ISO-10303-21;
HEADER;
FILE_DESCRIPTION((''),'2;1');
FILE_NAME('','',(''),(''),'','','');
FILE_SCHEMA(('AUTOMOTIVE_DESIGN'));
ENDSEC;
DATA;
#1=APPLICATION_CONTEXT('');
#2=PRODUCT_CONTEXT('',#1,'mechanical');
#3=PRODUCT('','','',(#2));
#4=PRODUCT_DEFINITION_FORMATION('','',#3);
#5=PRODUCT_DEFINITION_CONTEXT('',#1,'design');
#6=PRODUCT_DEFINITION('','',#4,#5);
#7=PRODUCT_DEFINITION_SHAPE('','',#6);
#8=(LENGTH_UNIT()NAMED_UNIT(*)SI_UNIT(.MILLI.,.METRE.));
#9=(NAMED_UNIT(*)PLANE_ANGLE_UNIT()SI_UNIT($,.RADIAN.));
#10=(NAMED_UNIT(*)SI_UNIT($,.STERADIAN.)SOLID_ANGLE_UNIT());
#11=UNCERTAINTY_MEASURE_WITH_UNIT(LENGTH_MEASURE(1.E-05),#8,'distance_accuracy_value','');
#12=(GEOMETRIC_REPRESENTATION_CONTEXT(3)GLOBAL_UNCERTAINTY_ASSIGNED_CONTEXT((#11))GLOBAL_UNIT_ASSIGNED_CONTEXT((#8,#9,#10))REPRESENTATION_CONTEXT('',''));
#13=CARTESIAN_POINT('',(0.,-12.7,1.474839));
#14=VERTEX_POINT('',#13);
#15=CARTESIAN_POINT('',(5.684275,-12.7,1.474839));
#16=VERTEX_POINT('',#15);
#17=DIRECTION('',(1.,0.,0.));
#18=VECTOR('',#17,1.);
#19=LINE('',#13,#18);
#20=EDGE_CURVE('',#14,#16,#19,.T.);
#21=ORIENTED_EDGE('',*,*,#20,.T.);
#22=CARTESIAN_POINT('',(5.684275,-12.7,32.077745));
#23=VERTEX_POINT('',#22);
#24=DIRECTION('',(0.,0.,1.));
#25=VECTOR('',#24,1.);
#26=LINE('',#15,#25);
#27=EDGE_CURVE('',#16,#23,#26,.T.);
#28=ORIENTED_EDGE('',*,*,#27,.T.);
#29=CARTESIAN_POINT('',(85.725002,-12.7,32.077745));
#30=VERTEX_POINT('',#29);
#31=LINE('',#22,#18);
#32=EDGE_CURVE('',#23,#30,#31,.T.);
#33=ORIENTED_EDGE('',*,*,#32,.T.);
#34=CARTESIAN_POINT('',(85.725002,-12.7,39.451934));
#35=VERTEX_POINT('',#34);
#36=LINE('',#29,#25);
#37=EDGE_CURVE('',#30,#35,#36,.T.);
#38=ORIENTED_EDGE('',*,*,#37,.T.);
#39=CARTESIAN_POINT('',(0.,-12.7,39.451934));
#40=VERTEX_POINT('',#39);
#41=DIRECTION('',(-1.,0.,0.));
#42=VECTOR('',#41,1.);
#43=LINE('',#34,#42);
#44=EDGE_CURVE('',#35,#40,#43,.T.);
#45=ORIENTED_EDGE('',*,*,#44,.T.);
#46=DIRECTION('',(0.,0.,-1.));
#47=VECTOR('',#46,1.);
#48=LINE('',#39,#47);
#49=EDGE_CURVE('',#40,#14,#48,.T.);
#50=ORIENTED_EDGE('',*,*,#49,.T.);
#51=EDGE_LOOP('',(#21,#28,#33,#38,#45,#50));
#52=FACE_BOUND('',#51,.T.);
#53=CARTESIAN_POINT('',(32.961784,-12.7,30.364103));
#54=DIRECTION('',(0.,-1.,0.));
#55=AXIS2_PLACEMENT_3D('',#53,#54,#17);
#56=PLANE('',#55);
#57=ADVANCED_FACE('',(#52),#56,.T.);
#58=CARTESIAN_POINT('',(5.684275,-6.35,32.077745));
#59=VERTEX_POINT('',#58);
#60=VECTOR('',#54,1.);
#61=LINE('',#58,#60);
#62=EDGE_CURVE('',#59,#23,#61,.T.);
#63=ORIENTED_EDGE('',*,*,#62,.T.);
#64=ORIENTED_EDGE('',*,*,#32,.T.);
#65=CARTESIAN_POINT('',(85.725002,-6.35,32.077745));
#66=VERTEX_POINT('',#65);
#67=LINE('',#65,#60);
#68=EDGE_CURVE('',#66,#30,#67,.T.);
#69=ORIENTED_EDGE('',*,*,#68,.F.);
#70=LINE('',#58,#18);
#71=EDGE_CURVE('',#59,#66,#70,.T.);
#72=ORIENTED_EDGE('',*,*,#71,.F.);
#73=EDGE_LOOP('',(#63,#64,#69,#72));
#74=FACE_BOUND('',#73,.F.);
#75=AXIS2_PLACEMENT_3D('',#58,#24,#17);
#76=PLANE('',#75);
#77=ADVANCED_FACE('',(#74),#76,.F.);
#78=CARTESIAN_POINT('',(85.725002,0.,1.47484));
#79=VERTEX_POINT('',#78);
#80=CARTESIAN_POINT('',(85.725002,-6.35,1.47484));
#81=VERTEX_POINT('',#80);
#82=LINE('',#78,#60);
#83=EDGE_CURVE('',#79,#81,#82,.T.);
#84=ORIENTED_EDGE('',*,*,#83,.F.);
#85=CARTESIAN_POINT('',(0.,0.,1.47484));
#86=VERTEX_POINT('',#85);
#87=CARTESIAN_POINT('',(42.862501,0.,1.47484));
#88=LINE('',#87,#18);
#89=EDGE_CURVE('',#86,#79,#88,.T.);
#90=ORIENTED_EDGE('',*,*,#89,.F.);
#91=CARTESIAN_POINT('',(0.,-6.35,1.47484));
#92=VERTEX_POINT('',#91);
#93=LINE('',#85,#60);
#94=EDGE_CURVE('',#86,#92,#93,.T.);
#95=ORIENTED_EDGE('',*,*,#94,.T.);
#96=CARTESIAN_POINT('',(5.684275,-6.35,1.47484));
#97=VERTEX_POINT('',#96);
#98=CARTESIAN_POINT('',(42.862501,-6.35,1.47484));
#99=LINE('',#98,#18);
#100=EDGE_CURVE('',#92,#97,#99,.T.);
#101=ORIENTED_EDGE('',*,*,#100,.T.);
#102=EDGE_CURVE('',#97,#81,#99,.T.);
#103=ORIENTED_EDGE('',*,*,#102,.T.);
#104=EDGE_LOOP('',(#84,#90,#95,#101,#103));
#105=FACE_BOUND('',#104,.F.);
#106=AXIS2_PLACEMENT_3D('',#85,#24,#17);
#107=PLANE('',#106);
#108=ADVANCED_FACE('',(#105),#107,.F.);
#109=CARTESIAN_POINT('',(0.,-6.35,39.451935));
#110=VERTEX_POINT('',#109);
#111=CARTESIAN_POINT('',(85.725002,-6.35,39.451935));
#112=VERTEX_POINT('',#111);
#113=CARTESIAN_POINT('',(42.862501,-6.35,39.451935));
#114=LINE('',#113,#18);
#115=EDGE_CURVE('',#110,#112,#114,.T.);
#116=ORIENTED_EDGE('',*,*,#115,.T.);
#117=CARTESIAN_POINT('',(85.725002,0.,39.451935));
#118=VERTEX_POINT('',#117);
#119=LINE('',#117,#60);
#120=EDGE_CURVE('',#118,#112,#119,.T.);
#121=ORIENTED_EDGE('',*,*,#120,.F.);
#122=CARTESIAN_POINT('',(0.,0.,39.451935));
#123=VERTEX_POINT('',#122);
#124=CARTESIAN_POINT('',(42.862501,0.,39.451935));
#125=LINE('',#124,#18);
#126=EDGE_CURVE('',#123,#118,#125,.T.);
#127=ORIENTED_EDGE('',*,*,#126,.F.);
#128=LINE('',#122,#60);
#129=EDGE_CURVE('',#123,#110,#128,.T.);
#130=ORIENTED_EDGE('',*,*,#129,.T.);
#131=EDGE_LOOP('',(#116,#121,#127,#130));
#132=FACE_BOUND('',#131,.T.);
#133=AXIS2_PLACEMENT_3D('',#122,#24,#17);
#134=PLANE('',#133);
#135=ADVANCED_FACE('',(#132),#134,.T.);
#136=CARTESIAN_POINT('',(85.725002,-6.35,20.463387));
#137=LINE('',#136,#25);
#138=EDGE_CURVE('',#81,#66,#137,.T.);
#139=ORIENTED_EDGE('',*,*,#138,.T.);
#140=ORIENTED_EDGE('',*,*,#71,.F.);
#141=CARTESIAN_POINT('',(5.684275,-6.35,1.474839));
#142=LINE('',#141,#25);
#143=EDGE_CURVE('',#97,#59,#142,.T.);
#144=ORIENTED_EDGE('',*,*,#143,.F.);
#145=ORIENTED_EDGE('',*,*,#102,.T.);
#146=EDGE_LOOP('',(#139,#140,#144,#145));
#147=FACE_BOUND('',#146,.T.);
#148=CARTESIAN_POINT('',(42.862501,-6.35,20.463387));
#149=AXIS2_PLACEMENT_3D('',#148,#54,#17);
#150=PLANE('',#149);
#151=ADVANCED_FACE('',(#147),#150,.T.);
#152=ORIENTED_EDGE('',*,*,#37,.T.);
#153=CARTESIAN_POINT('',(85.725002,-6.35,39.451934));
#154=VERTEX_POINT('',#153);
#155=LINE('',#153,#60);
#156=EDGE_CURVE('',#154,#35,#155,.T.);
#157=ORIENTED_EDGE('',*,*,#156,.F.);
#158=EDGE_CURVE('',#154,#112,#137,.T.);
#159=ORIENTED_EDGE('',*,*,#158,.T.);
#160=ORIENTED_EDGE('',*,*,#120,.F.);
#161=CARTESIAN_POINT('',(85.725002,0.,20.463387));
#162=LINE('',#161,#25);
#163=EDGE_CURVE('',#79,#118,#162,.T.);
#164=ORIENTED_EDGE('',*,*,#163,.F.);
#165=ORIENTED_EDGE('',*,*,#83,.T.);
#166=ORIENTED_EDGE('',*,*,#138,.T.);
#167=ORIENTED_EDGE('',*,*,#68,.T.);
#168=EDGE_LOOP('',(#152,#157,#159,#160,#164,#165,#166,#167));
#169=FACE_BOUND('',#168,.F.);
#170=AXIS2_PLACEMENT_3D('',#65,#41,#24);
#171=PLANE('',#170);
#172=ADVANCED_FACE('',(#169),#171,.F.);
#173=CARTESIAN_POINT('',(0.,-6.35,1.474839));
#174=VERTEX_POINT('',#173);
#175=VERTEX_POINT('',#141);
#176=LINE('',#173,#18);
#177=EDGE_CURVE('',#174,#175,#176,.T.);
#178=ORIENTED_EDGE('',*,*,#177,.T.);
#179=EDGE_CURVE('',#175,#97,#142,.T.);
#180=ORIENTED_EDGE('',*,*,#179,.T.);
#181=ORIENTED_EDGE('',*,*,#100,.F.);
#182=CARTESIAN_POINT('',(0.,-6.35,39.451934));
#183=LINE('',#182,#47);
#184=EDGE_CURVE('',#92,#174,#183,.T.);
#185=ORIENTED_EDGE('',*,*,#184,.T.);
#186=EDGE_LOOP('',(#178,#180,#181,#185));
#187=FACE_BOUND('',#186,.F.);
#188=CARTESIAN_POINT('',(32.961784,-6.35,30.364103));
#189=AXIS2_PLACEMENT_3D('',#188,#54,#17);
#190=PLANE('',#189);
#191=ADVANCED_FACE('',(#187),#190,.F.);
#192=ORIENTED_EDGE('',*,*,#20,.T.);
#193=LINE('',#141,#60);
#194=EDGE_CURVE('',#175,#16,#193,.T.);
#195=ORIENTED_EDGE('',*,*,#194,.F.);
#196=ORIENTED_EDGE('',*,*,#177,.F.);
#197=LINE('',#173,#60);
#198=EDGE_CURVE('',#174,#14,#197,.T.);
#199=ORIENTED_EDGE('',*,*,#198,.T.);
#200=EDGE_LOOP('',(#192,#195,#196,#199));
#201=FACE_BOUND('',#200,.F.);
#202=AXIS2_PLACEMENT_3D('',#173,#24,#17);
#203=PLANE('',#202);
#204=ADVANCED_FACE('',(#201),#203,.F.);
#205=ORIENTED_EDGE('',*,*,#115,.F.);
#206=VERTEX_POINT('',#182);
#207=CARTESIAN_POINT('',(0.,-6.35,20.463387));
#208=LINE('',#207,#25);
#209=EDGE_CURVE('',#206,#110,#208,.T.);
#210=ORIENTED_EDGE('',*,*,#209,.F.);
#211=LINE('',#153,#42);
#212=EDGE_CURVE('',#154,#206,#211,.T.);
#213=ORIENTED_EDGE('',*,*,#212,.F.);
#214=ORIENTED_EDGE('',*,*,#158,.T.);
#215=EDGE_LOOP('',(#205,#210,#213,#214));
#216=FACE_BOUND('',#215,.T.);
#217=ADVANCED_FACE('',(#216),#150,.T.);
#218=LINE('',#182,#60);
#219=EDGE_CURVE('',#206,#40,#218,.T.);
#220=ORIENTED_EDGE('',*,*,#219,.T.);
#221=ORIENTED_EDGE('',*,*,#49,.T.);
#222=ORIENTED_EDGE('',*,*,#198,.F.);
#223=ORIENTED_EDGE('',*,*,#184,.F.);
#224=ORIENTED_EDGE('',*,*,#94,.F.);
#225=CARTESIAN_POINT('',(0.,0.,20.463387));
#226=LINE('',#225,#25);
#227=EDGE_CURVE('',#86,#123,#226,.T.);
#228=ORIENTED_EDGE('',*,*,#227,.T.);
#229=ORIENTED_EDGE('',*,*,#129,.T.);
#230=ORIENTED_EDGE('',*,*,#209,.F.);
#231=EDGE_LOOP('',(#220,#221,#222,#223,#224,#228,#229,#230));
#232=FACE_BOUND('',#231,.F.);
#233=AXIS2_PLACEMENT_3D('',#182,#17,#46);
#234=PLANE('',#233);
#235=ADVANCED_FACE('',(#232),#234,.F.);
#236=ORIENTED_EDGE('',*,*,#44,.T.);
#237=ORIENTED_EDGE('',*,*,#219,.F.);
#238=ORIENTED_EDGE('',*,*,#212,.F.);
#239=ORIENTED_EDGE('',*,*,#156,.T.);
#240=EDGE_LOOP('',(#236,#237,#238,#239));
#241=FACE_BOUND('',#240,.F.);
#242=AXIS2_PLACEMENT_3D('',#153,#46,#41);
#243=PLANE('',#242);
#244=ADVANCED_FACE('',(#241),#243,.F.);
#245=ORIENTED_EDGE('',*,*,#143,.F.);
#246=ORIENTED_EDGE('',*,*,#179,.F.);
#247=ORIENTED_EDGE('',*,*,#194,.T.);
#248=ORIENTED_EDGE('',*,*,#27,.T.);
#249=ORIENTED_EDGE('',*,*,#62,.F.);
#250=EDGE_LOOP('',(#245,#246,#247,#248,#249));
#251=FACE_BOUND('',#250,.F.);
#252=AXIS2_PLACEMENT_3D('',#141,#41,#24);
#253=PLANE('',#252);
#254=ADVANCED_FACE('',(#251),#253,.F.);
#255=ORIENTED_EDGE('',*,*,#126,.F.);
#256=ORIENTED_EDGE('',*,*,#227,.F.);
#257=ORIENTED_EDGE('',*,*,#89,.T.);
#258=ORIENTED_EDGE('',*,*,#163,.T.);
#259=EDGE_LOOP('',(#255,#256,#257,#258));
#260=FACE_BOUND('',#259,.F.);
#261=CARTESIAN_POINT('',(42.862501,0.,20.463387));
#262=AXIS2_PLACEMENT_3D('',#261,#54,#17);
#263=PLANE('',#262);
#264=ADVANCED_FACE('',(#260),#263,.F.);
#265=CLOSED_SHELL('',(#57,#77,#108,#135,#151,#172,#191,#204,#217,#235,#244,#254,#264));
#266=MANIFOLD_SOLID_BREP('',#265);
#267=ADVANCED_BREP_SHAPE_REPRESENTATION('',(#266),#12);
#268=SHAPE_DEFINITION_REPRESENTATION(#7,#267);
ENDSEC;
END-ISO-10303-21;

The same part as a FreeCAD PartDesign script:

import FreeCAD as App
import Part
import Sketcher

V = App.Vector
Q = App.Units.Quantity

doc = App.newDocument("Part")
params = doc.addObject("Spreadsheet::Sheet", "Params")
for row, (alias, value) in enumerate([
    ("sketch1_width", "3.3750001 in"),
    ("pad1_length", "0.25 in"),
    ("sketch2_width", "3.3750001 in"),
    ("pad2_length", "0.25 in"),
], start=1):
    params.set(f"A{row}", alias)
    params.set(f"B{row}", "=" + value)
    params.setAlias(f"B{row}", alias)

body = doc.addObject("PartDesign::Body", "Body")

# Sketch on XZ plane
sketch1 = body.newObject("Sketcher::SketchObject", "Sketch")
sketch1.AttachmentSupport = (doc.getObject("XZ_Plane"), [""])
sketch1.MapMode = "FlatFace"
sketch1.addGeometry(Part.LineSegment(V(0, 39.451935, 0), V(0, 1.47484, 0)), False)
sketch1.addGeometry(Part.LineSegment(V(0, 1.47484, 0), V(85.725002, 1.47484, 0)), False)
sketch1.addGeometry(Part.LineSegment(V(85.725002, 1.47484, 0), V(85.725002, 39.451935, 0)), False)
sketch1.addGeometry(Part.LineSegment(V(85.725002, 39.451935, 0), V(0, 39.451935, 0)), False)
sketch1.addConstraint(Sketcher.Constraint("Coincident", 0, 2, 1, 1))
sketch1.addConstraint(Sketcher.Constraint("Coincident", 1, 2, 2, 1))
sketch1.addConstraint(Sketcher.Constraint("Coincident", 2, 2, 3, 1))
sketch1.addConstraint(Sketcher.Constraint("Coincident", 3, 2, 0, 1))
sketch1.addConstraint(Sketcher.Constraint("Vertical", 0))
sketch1.addConstraint(Sketcher.Constraint("Horizontal", 1))
sketch1.addConstraint(Sketcher.Constraint("Vertical", 2))
sketch1.addConstraint(Sketcher.Constraint("Horizontal", 3))
sketch1.addConstraint(Sketcher.Constraint("PointOnObject", 0, 2, -2))
sketch1.addConstraint(Sketcher.Constraint("DistanceX", 1, 1, 1, 2, Q("3.3750001 in")))
sketch1.addConstraint(Sketcher.Constraint("DistanceY", 0, 2, 0, 1, Q("37.977095 mm")))
sketch1.addConstraint(Sketcher.Constraint("DistanceY", -1, 1, 0, 2, Q("1.47484 mm")))
sketch1.setExpression("Constraints[9]", "Params.sketch1_width")
pad1 = body.newObject("PartDesign::Pad", "Pad")
pad1.Profile = sketch1
pad1.setExpression("Length", "Params.pad1_length")

# Sketch on XZ plane
sketch2 = body.newObject("Sketcher::SketchObject", "Sketch001")
sketch2.AttachmentSupport = (doc.getObject("XZ_Plane"), [""])
sketch2.MapMode = "FlatFace"
sketch2.AttachmentOffset = App.Placement(V(0, 0, 0.25 * 25.4), App.Rotation())
sketch2.addGeometry(Part.LineSegment(V(0, 39.451934, 0), V(0, 1.474839, 0)), False)
sketch2.addGeometry(Part.LineSegment(V(0, 1.474839, 0), V(5.684275, 1.474839, 0)), False)
sketch2.addGeometry(Part.LineSegment(V(5.684275, 1.474839, 0), V(5.684275, 32.077745, 0)), False)
sketch2.addGeometry(Part.LineSegment(V(5.684275, 32.077745, 0), V(85.725002, 32.077745, 0)), False)
sketch2.addGeometry(Part.LineSegment(V(85.725002, 32.077745, 0), V(85.725002, 39.451934, 0)), False)
sketch2.addGeometry(Part.LineSegment(V(85.725002, 39.451934, 0), V(0, 39.451934, 0)), False)
sketch2.addConstraint(Sketcher.Constraint("Coincident", 0, 2, 1, 1))
sketch2.addConstraint(Sketcher.Constraint("Coincident", 1, 2, 2, 1))
sketch2.addConstraint(Sketcher.Constraint("Coincident", 2, 2, 3, 1))
sketch2.addConstraint(Sketcher.Constraint("Coincident", 3, 2, 4, 1))
sketch2.addConstraint(Sketcher.Constraint("Coincident", 4, 2, 5, 1))
sketch2.addConstraint(Sketcher.Constraint("Coincident", 5, 2, 0, 1))
sketch2.addConstraint(Sketcher.Constraint("Vertical", 0))
sketch2.addConstraint(Sketcher.Constraint("Horizontal", 1))
sketch2.addConstraint(Sketcher.Constraint("Vertical", 2))
sketch2.addConstraint(Sketcher.Constraint("Horizontal", 3))
sketch2.addConstraint(Sketcher.Constraint("Vertical", 4))
sketch2.addConstraint(Sketcher.Constraint("Horizontal", 5))
sketch2.addConstraint(Sketcher.Constraint("PointOnObject", 0, 2, -2))
sketch2.addConstraint(Sketcher.Constraint("DistanceX", 5, 2, 5, 1, Q("3.3750001 in")))
sketch2.addConstraint(Sketcher.Constraint("DistanceY", 4, 1, 4, 2, Q("7.374189 mm")))
sketch2.addConstraint(Sketcher.Constraint("DistanceX", 1, 1, 1, 2, Q("5.684275 mm")))
sketch2.addConstraint(Sketcher.Constraint("DistanceY", 0, 2, 0, 1, Q("37.977095 mm")))
sketch2.addConstraint(Sketcher.Constraint("DistanceY", -1, 1, 0, 2, Q("1.474839 mm")))
sketch2.setExpression("Constraints[13]", "Params.sketch2_width")
pad2 = body.newObject("PartDesign::Pad", "Pad001")
pad2.Profile = sketch2
pad2.setExpression("Length", "Params.pad2_length")

doc.recompute()
